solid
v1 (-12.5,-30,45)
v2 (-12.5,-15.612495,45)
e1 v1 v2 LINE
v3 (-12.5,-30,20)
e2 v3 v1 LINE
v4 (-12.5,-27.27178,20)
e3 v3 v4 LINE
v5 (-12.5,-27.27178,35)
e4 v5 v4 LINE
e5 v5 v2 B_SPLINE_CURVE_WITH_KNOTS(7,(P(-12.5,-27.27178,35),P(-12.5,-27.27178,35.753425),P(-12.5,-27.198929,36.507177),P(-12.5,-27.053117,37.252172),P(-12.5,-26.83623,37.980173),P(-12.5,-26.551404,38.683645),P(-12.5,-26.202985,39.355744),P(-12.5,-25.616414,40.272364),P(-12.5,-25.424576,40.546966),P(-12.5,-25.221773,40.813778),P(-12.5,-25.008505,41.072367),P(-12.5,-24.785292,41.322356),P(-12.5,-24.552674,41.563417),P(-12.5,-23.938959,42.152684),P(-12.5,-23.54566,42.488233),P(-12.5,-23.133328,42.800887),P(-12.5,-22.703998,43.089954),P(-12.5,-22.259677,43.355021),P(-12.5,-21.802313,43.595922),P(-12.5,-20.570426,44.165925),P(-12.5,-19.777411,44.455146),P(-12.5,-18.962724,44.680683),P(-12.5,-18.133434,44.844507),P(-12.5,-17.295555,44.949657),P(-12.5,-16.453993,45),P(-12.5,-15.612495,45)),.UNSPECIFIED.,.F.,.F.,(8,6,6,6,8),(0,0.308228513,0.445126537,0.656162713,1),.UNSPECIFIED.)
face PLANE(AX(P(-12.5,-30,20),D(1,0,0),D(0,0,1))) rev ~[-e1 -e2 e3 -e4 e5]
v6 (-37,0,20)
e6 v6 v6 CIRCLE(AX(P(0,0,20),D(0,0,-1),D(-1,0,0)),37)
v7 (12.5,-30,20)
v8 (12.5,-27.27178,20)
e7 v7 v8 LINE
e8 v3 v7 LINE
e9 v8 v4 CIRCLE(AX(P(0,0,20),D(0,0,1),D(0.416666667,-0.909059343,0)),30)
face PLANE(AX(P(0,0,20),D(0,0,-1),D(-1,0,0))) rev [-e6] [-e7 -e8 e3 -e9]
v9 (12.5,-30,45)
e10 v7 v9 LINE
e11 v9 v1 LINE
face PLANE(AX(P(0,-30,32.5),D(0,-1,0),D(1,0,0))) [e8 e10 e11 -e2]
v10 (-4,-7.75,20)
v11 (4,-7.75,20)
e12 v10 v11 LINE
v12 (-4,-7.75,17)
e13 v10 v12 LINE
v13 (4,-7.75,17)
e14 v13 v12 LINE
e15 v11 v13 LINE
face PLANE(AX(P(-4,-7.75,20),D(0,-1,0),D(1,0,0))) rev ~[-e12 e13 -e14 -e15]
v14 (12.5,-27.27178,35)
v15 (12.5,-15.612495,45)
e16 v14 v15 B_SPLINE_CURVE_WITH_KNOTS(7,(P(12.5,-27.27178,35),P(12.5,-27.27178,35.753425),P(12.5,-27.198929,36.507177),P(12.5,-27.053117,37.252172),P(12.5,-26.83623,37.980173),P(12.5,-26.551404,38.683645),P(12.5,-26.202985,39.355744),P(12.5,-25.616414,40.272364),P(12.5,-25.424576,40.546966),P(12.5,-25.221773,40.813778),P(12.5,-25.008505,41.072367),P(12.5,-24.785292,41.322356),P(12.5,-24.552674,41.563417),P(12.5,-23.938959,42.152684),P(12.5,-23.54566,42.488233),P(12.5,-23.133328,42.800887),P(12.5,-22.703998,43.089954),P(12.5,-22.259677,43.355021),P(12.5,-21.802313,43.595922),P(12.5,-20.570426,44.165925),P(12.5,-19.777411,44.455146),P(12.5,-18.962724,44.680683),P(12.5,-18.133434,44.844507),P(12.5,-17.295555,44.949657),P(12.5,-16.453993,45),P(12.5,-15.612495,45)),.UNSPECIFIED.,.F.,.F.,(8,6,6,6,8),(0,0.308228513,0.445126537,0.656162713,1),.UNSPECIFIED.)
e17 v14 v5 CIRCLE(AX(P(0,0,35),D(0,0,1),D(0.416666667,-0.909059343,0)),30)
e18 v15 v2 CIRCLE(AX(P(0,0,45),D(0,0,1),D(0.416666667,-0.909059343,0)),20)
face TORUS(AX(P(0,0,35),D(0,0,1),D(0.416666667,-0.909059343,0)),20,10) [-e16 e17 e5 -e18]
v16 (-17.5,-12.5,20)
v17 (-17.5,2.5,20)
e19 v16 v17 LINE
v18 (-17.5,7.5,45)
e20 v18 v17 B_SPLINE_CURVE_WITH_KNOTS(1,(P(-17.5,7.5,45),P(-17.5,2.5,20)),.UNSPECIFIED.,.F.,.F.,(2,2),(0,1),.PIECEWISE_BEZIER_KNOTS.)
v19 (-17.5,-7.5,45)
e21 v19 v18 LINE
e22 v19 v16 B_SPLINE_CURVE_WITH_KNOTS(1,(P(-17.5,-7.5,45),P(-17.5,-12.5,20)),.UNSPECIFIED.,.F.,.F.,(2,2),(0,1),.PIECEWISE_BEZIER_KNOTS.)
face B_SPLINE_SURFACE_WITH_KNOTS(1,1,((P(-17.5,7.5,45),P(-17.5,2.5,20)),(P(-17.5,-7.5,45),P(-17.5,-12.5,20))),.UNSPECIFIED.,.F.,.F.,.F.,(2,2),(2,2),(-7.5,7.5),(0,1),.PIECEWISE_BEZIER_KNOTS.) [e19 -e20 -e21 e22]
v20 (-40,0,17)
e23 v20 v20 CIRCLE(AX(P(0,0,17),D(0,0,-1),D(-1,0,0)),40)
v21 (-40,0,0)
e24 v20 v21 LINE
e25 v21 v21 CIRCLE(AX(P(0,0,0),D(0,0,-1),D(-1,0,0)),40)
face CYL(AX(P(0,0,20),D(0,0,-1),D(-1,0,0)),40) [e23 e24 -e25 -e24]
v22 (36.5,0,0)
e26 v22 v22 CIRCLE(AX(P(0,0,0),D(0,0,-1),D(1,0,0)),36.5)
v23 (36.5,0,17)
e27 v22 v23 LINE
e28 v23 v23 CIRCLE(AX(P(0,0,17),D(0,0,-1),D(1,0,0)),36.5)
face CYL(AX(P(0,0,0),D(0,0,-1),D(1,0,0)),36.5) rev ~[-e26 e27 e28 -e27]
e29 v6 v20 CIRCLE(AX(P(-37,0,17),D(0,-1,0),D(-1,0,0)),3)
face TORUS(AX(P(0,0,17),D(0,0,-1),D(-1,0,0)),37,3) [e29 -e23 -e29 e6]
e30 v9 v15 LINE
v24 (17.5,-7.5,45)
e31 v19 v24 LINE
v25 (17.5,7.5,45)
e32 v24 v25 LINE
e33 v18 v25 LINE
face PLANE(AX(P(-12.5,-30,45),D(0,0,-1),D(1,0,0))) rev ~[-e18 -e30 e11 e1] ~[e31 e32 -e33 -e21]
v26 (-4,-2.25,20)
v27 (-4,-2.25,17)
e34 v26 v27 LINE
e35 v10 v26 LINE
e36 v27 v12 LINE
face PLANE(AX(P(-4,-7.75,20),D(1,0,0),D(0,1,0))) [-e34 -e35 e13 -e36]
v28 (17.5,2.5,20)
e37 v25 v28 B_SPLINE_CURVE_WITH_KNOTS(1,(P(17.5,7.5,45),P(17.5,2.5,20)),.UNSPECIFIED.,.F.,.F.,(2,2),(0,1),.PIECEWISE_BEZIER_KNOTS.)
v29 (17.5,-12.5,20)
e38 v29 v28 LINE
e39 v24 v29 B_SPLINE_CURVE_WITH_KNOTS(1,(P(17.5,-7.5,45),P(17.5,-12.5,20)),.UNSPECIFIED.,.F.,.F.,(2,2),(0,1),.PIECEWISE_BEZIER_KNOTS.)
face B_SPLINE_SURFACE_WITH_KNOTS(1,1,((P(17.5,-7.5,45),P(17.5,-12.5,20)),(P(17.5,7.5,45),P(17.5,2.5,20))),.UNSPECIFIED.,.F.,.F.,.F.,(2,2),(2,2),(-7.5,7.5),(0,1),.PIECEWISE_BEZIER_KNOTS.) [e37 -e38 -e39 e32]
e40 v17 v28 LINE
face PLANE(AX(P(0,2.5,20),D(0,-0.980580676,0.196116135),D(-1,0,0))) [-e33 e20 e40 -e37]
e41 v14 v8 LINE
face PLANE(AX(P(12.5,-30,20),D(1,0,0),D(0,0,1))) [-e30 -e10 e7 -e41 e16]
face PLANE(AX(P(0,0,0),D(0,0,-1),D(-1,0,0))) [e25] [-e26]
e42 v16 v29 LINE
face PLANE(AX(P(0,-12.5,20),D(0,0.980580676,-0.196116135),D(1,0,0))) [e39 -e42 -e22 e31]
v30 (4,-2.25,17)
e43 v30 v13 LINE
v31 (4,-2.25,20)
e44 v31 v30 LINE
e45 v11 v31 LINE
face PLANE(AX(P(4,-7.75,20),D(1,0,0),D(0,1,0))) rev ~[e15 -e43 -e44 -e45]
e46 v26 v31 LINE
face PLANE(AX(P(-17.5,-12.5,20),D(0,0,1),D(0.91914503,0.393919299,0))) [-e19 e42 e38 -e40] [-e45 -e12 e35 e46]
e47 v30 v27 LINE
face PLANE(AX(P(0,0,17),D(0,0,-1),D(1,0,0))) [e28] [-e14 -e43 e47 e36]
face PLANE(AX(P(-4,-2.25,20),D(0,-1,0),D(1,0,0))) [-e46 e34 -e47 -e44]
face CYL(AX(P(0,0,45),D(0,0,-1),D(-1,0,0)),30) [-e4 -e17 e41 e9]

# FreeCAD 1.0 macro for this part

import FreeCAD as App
import Part
import Sketcher

V = App.Vector


def edges_at(feature, points):
    """Names of the edges that pass closest to the given points."""
    edges = feature.Shape.Edges
    near = lambda p: min(range(len(edges)), key=lambda i: edges[i].distToShape(Part.Vertex(*p))[0])
    return sorted({f"Edge{near(p) + 1}" for p in points})


def add_polygon(sketch, points):
    """Adds a closed chain of lines whose ends are joined by coincident constraints."""
    first, n = sketch.GeometryCount, len(points)
    for a, b in zip(points, points[1:] + points[:1]):
        sketch.addGeometry(Part.LineSegment(App.Vector(*a, 0), App.Vector(*b, 0)), False)
    for i in range(n):
        sketch.addConstraint(Sketcher.Constraint("Coincident", first + i, 2, first + (i + 1) % n, 1))

doc = App.newDocument("Part")
body = doc.addObject("PartDesign::Body", "Body")

# Sketch on XZ plane
sketch1 = body.newObject("Sketcher::SketchObject", "Sketch")
sketch1.AttachmentSupport = (doc.getObject("XZ_Plane"), [""])
sketch1.MapMode = "FlatFace"
add_polygon(sketch1, [(-40, 0), (0, 0), (0, 45), (-30, 45), (-30, 20), (-40, 20)])  # lines 0-5
sketch1.addConstraint([
    Sketcher.Constraint("Horizontal", 0),
    Sketcher.Constraint("Vertical", 1),
    Sketcher.Constraint("Horizontal", 2),
    Sketcher.Constraint("Vertical", 3),
    Sketcher.Constraint("Horizontal", 4),
    Sketcher.Constraint("Vertical", 5),
    Sketcher.Constraint("Coincident", 0, 2, -1, 1),
    Sketcher.Constraint("DistanceX", 0, 1, 0, 2, 40.0),
    Sketcher.Constraint("DistanceX", 2, 2, 2, 1, 30.0),
    Sketcher.Constraint("DistanceY", 1, 1, 1, 2, 45.0),
    Sketcher.Constraint("DistanceY", 3, 2, 3, 1, 25.0),
])
revolution = body.newObject("PartDesign::Revolution", "Revolution")
revolution.Profile = sketch1
revolution.ReferenceAxis = (sketch1, ["V_Axis"])
revolution.Angle = 360

# Sketch on XZ plane
sketch2 = body.newObject("Sketcher::SketchObject", "Sketch001")
sketch2.AttachmentSupport = (doc.getObject("XZ_Plane"), [""])
sketch2.MapMode = "FlatFace"
sketch2.AttachmentOffset = App.Placement(V(0, 0, 30), App.Rotation())
add_polygon(sketch2, [(-12.5, 45), (-12.5, 20), (12.5, 20), (12.5, 45)])  # lines 0-3
sketch2.addConstraint([
    Sketcher.Constraint("Vertical", 0),
    Sketcher.Constraint("Horizontal", 1),
    Sketcher.Constraint("Vertical", 2),
    Sketcher.Constraint("Horizontal", 3),
    Sketcher.Constraint("Equal", 3, 0),
    Sketcher.Constraint("DistanceX", 1, 1, 1, 2, 25.0),
    Sketcher.Constraint("DistanceY", -1, 1, 0, 2, 20.0),
    Sketcher.Constraint("DistanceX", 0, 2, -1, 1, 12.5),
])
pad1 = body.newObject("PartDesign::Pad", "Pad")
pad1.Profile = sketch2
pad1.Length = 25
pad1.Reversed = True
doc.recompute()

fillet = body.newObject("PartDesign::Fillet", "Fillet")
fillet.Base = (pad1, edges_at(pad1, [(0, 30, 45)]))
fillet.Radius = 10
doc.recompute()

fillet2 = body.newObject("PartDesign::Fillet", "Fillet001")
fillet2.Base = (fillet, edges_at(fillet, [(40, 0, 20)]))
fillet2.Radius = 3

# Sketch on XY plane
sketch3 = body.newObject("Sketcher::SketchObject", "Sketch002")
sketch3.AttachmentSupport = (doc.getObject("XY_Plane"), [""])
sketch3.MapMode = "FlatFace"
sketch3.AttachmentOffset = App.Placement(V(0, 0, 45), App.Rotation())
add_polygon(sketch3, [(-17.5, 7.5), (-17.5, -7.5), (17.5, -7.5), (17.5, 7.5)])  # lines 0-3
sketch3.addConstraint([
    Sketcher.Constraint("Vertical", 0),
    Sketcher.Constraint("Horizontal", 1),
    Sketcher.Constraint("Vertical", 2),
    Sketcher.Constraint("Horizontal", 3),
    Sketcher.Constraint("Symmetric", 0, 2, 2, 2, -1, 1),
    Sketcher.Constraint("DistanceX", 1, 1, 1, 2, 35.0),
    Sketcher.Constraint("DistanceY", 0, 2, 0, 1, 15.0),
])

# Sketch on XY plane
sketch4 = body.newObject("Sketcher::SketchObject", "Sketch003")
sketch4.AttachmentSupport = (doc.getObject("XY_Plane"), [""])
sketch4.MapMode = "FlatFace"
sketch4.AttachmentOffset = App.Placement(V(0, 0, 20), App.Rotation())
add_polygon(sketch4, [(-17.5, 2.5), (-17.5, -12.5), (17.5, -12.5), (17.5, 2.5)])  # lines 0-3
sketch4.addConstraint([
    Sketcher.Constraint("Vertical", 0),
    Sketcher.Constraint("Horizontal", 1),
    Sketcher.Constraint("Vertical", 2),
    Sketcher.Constraint("Horizontal", 3),
    Sketcher.Constraint("DistanceX", 1, 1, 1, 2, 35.0),
    Sketcher.Constraint("DistanceY", 0, 2, 0, 1, 15.0),
    Sketcher.Constraint("DistanceX", 0, 2, -1, 1, 17.5),
    Sketcher.Constraint("DistanceY", 0, 2, -1, 1, 12.5),
])

subtractiveloft = body.newObject("PartDesign::SubtractiveLoft", "SubtractiveLoft")
subtractiveloft.Profile = sketch3
subtractiveloft.Sections = [sketch4]

# Sketch on XY plane
sketch5 = body.newObject("Sketcher::SketchObject", "Sketch004")
sketch5.AttachmentSupport = (doc.getObject("XY_Plane"), [""])
sketch5.MapMode = "FlatFace"
sketch5.addGeometry(Part.Circle(V(0, 0, 0), V(0, 0, 1), 36.5), False)
sketch5.addConstraint([
    Sketcher.Constraint("Coincident", 0, 3, -1, 1),
    Sketcher.Constraint("Diameter", 0, 73.0),
])
pocket1 = body.newObject("PartDesign::Pocket", "Pocket")
pocket1.Profile = sketch5
pocket1.Length = 17
pocket1.Reversed = True

# Sketch on XY plane
sketch6 = body.newObject("Sketcher::SketchObject", "Sketch005")
sketch6.AttachmentSupport = (doc.getObject("XY_Plane"), [""])
sketch6.MapMode = "FlatFace"
sketch6.AttachmentOffset = App.Placement(V(0, 0, 20), App.Rotation())
add_polygon(sketch6, [(-4, -2.25), (-4, -7.75), (4, -7.75), (4, -2.25)])  # lines 0-3
sketch6.addConstraint([
    Sketcher.Constraint("Vertical", 0),
    Sketcher.Constraint("Horizontal", 1),
    Sketcher.Constraint("Vertical", 2),
    Sketcher.Constraint("Horizontal", 3),
    Sketcher.Constraint("DistanceX", 1, 1, 1, 2, 8.0),
    Sketcher.Constraint("DistanceY", 0, 2, 0, 1, 5.5),
    Sketcher.Constraint("DistanceX", 0, 2, -1, 1, 4.0),
    Sketcher.Constraint("DistanceY", 0, 2, -1, 1, 7.75),
])
pocket2 = body.newObject("PartDesign::Pocket", "Pocket001")
pocket2.Profile = sketch6
pocket2.Type = "ThroughAll"

doc.recompute()
